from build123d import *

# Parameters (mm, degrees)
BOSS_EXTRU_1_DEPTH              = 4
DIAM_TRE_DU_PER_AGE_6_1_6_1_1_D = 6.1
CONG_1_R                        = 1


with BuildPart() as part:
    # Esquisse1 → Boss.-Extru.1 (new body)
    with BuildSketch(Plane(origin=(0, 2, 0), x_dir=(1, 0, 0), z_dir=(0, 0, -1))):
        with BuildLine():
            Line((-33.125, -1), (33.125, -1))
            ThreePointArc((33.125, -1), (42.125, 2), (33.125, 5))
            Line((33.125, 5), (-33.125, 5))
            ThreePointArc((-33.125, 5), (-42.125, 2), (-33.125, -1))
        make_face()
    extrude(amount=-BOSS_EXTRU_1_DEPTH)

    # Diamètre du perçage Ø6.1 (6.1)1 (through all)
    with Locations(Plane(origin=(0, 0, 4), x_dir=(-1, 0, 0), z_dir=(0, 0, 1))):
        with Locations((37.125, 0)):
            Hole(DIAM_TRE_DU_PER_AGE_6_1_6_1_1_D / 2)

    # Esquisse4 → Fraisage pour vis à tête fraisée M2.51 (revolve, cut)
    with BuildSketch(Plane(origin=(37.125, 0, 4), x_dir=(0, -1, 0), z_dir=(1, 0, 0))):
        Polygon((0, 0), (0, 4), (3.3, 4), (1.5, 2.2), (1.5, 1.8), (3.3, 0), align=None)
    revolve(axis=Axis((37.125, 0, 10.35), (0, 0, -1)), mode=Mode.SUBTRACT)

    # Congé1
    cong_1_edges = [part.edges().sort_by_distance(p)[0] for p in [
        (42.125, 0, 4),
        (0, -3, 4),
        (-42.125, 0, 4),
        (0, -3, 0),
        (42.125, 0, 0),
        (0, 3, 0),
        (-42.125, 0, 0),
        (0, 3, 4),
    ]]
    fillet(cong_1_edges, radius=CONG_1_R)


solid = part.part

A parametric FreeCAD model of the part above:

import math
import FreeCAD as App
import Part
import Sketcher

V = App.Vector
Q = App.Units.Quantity


def edges_at(feature, points):
    """Names of the edges that pass closest to the given points."""
    edges = feature.Shape.Edges
    near = lambda p: min(range(len(edges)), key=lambda i: edges[i].distToShape(Part.Vertex(*p))[0])
    return sorted({f"Edge{near(p) + 1}" for p in points})


def add_polygon(sketch, points):
    """Adds a closed chain of lines whose ends are joined by coincident constraints."""
    first, n = sketch.GeometryCount, len(points)
    for a, b in zip(points, points[1:] + points[:1]):
        sketch.addGeometry(Part.LineSegment(App.Vector(*a, 0), App.Vector(*b, 0)), False)
    for i in range(n):
        sketch.addConstraint(Sketcher.Constraint("Coincident", first + i, 2, first + (i + 1) % n, 1))

doc = App.newDocument("Part")
body = doc.addObject("PartDesign::Body", "Body")

# Sketch on XY plane
sketch1 = body.newObject("Sketcher::SketchObject", "Sketch")
sketch1.AttachmentSupport = (doc.getObject("XY_Plane"), [""])
sketch1.MapMode = "FlatFace"
sketch1.addGeometry([
    Part.LineSegment(V(-33, 3, 0), V(33, 3, 0)),
    Part.ArcOfCircle(Part.Circle(V(37, 0, 0), V(0, 0, 1), 5), math.radians(-143), math.radians(143)),
    Part.LineSegment(V(33, -3, 0), V(-33, -3, 0)),
    Part.ArcOfCircle(Part.Circle(V(-37, 0, 0), V(0, 0, 1), 5), math.radians(37), math.radians(323)),
], False)
sketch1.addConstraint([
    Sketcher.Constraint("Coincident", 0, 2, 1, 2),
    Sketcher.Constraint("Coincident", 1, 1, 2, 1),
    Sketcher.Constraint("Coincident", 2, 2, 3, 2),
    Sketcher.Constraint("Coincident", 3, 1, 0, 1),
    Sketcher.Constraint("Horizontal", 0),
    Sketcher.Constraint("Horizontal", 2),
    Sketcher.Constraint("Equal", 1, 3),
    Sketcher.Constraint("Symmetric", 1, 3, 3, 3, -1, 1),
    Sketcher.Constraint("Symmetric", 0, 2, 1, 1, -1),
    Sketcher.Constraint("Radius", 1, Q("5 mm")),
    Sketcher.Constraint("DistanceY", -1, 1, 0, 2, Q("3 mm")),
    Sketcher.Constraint("DistanceX", 0, 1, 0, 2, Q("66.25 mm")),
])
pad1 = body.newObject("PartDesign::Pad", "Pad")
pad1.Profile = sketch1
pad1.Length = 4

# Sketch on XY plane
sketch2 = body.newObject("Sketcher::SketchObject", "Sketch001")
sketch2.AttachmentSupport = (doc.getObject("XY_Plane"), [""])
sketch2.MapMode = "FlatFace"
sketch2.AttachmentOffset = App.Placement(V(0, 0, 4), App.Rotation())
sketch2.addGeometry(Part.Circle(V(-37.1, 0, 0), V(0, 0, 1), 3), False)
sketch2.addConstraint([
    Sketcher.Constraint("PointOnObject", 0, 3, -1),
    Sketcher.Constraint("Diameter", 0, Q("6.1 mm")),
    Sketcher.Constraint("DistanceX", 0, 3, -1, 1, Q("37.125 mm")),
])
doc.recompute()
hole = body.newObject("PartDesign::Hole", "Hole")
hole.Profile = sketch2
hole.ThreadType = "None"
hole.Diameter = 6.1
hole.DepthType = "ThroughAll"

# Sketch on YZ plane
sketch3 = body.newObject("Sketcher::SketchObject", "Sketch002")
sketch3.AttachmentSupport = (doc.getObject("YZ_Plane"), [""])
sketch3.MapMode = "FlatFace"
sketch3.AttachmentOffset = App.Placement(V(0, 0, 37.125), App.Rotation())
add_polygon(sketch3, [(0, 0), (0, 4), (-3.3, 4), (-1.5, 2.2), (-1.5, 1.8), (-3.3, 0)])  # lines 0-5
sketch3.addConstraint([
    Sketcher.Constraint("Vertical", 0),
    Sketcher.Constraint("Horizontal", 1),
    Sketcher.Constraint("Vertical", 3),
    Sketcher.Constraint("Horizontal", 5),
    Sketcher.Constraint("Coincident", 5, 2, -1, 1),
    Sketcher.Constraint("Perpendicular", 2, 4),
    Sketcher.Constraint("Vertical", 1, 2, 4, 2),
    Sketcher.Constraint("Equal", 2, 4),
    Sketcher.Constraint("DistanceY", 0, 1, 0, 2, Q("4 mm")),
    Sketcher.Constraint("DistanceX", 1, 2, 1, 1, Q("3.3 mm")),
    Sketcher.Constraint("DistanceY", 3, 2, 3, 1, Q("0.4 mm")),
])
groove = body.newObject("PartDesign::Groove", "Groove")
groove.Profile = sketch3
groove.ReferenceAxis = (sketch3, ["V_Axis"])
groove.Angle = 360
doc.recompute()

fillet = body.newObject("PartDesign::Fillet", "Fillet")
fillet.Base = (groove, edges_at(groove, [
    (42.125, 0, 4),
    (0, -3, 4),
    (-42.125, 0, 4),
    (0, -3, 0),
    (42.125, 0, 0),
    (0, 3, 0),
    (-42.125, 0, 0),
    (0, 3, 4),
]))
fillet.Radius = 1

doc.recompute()
